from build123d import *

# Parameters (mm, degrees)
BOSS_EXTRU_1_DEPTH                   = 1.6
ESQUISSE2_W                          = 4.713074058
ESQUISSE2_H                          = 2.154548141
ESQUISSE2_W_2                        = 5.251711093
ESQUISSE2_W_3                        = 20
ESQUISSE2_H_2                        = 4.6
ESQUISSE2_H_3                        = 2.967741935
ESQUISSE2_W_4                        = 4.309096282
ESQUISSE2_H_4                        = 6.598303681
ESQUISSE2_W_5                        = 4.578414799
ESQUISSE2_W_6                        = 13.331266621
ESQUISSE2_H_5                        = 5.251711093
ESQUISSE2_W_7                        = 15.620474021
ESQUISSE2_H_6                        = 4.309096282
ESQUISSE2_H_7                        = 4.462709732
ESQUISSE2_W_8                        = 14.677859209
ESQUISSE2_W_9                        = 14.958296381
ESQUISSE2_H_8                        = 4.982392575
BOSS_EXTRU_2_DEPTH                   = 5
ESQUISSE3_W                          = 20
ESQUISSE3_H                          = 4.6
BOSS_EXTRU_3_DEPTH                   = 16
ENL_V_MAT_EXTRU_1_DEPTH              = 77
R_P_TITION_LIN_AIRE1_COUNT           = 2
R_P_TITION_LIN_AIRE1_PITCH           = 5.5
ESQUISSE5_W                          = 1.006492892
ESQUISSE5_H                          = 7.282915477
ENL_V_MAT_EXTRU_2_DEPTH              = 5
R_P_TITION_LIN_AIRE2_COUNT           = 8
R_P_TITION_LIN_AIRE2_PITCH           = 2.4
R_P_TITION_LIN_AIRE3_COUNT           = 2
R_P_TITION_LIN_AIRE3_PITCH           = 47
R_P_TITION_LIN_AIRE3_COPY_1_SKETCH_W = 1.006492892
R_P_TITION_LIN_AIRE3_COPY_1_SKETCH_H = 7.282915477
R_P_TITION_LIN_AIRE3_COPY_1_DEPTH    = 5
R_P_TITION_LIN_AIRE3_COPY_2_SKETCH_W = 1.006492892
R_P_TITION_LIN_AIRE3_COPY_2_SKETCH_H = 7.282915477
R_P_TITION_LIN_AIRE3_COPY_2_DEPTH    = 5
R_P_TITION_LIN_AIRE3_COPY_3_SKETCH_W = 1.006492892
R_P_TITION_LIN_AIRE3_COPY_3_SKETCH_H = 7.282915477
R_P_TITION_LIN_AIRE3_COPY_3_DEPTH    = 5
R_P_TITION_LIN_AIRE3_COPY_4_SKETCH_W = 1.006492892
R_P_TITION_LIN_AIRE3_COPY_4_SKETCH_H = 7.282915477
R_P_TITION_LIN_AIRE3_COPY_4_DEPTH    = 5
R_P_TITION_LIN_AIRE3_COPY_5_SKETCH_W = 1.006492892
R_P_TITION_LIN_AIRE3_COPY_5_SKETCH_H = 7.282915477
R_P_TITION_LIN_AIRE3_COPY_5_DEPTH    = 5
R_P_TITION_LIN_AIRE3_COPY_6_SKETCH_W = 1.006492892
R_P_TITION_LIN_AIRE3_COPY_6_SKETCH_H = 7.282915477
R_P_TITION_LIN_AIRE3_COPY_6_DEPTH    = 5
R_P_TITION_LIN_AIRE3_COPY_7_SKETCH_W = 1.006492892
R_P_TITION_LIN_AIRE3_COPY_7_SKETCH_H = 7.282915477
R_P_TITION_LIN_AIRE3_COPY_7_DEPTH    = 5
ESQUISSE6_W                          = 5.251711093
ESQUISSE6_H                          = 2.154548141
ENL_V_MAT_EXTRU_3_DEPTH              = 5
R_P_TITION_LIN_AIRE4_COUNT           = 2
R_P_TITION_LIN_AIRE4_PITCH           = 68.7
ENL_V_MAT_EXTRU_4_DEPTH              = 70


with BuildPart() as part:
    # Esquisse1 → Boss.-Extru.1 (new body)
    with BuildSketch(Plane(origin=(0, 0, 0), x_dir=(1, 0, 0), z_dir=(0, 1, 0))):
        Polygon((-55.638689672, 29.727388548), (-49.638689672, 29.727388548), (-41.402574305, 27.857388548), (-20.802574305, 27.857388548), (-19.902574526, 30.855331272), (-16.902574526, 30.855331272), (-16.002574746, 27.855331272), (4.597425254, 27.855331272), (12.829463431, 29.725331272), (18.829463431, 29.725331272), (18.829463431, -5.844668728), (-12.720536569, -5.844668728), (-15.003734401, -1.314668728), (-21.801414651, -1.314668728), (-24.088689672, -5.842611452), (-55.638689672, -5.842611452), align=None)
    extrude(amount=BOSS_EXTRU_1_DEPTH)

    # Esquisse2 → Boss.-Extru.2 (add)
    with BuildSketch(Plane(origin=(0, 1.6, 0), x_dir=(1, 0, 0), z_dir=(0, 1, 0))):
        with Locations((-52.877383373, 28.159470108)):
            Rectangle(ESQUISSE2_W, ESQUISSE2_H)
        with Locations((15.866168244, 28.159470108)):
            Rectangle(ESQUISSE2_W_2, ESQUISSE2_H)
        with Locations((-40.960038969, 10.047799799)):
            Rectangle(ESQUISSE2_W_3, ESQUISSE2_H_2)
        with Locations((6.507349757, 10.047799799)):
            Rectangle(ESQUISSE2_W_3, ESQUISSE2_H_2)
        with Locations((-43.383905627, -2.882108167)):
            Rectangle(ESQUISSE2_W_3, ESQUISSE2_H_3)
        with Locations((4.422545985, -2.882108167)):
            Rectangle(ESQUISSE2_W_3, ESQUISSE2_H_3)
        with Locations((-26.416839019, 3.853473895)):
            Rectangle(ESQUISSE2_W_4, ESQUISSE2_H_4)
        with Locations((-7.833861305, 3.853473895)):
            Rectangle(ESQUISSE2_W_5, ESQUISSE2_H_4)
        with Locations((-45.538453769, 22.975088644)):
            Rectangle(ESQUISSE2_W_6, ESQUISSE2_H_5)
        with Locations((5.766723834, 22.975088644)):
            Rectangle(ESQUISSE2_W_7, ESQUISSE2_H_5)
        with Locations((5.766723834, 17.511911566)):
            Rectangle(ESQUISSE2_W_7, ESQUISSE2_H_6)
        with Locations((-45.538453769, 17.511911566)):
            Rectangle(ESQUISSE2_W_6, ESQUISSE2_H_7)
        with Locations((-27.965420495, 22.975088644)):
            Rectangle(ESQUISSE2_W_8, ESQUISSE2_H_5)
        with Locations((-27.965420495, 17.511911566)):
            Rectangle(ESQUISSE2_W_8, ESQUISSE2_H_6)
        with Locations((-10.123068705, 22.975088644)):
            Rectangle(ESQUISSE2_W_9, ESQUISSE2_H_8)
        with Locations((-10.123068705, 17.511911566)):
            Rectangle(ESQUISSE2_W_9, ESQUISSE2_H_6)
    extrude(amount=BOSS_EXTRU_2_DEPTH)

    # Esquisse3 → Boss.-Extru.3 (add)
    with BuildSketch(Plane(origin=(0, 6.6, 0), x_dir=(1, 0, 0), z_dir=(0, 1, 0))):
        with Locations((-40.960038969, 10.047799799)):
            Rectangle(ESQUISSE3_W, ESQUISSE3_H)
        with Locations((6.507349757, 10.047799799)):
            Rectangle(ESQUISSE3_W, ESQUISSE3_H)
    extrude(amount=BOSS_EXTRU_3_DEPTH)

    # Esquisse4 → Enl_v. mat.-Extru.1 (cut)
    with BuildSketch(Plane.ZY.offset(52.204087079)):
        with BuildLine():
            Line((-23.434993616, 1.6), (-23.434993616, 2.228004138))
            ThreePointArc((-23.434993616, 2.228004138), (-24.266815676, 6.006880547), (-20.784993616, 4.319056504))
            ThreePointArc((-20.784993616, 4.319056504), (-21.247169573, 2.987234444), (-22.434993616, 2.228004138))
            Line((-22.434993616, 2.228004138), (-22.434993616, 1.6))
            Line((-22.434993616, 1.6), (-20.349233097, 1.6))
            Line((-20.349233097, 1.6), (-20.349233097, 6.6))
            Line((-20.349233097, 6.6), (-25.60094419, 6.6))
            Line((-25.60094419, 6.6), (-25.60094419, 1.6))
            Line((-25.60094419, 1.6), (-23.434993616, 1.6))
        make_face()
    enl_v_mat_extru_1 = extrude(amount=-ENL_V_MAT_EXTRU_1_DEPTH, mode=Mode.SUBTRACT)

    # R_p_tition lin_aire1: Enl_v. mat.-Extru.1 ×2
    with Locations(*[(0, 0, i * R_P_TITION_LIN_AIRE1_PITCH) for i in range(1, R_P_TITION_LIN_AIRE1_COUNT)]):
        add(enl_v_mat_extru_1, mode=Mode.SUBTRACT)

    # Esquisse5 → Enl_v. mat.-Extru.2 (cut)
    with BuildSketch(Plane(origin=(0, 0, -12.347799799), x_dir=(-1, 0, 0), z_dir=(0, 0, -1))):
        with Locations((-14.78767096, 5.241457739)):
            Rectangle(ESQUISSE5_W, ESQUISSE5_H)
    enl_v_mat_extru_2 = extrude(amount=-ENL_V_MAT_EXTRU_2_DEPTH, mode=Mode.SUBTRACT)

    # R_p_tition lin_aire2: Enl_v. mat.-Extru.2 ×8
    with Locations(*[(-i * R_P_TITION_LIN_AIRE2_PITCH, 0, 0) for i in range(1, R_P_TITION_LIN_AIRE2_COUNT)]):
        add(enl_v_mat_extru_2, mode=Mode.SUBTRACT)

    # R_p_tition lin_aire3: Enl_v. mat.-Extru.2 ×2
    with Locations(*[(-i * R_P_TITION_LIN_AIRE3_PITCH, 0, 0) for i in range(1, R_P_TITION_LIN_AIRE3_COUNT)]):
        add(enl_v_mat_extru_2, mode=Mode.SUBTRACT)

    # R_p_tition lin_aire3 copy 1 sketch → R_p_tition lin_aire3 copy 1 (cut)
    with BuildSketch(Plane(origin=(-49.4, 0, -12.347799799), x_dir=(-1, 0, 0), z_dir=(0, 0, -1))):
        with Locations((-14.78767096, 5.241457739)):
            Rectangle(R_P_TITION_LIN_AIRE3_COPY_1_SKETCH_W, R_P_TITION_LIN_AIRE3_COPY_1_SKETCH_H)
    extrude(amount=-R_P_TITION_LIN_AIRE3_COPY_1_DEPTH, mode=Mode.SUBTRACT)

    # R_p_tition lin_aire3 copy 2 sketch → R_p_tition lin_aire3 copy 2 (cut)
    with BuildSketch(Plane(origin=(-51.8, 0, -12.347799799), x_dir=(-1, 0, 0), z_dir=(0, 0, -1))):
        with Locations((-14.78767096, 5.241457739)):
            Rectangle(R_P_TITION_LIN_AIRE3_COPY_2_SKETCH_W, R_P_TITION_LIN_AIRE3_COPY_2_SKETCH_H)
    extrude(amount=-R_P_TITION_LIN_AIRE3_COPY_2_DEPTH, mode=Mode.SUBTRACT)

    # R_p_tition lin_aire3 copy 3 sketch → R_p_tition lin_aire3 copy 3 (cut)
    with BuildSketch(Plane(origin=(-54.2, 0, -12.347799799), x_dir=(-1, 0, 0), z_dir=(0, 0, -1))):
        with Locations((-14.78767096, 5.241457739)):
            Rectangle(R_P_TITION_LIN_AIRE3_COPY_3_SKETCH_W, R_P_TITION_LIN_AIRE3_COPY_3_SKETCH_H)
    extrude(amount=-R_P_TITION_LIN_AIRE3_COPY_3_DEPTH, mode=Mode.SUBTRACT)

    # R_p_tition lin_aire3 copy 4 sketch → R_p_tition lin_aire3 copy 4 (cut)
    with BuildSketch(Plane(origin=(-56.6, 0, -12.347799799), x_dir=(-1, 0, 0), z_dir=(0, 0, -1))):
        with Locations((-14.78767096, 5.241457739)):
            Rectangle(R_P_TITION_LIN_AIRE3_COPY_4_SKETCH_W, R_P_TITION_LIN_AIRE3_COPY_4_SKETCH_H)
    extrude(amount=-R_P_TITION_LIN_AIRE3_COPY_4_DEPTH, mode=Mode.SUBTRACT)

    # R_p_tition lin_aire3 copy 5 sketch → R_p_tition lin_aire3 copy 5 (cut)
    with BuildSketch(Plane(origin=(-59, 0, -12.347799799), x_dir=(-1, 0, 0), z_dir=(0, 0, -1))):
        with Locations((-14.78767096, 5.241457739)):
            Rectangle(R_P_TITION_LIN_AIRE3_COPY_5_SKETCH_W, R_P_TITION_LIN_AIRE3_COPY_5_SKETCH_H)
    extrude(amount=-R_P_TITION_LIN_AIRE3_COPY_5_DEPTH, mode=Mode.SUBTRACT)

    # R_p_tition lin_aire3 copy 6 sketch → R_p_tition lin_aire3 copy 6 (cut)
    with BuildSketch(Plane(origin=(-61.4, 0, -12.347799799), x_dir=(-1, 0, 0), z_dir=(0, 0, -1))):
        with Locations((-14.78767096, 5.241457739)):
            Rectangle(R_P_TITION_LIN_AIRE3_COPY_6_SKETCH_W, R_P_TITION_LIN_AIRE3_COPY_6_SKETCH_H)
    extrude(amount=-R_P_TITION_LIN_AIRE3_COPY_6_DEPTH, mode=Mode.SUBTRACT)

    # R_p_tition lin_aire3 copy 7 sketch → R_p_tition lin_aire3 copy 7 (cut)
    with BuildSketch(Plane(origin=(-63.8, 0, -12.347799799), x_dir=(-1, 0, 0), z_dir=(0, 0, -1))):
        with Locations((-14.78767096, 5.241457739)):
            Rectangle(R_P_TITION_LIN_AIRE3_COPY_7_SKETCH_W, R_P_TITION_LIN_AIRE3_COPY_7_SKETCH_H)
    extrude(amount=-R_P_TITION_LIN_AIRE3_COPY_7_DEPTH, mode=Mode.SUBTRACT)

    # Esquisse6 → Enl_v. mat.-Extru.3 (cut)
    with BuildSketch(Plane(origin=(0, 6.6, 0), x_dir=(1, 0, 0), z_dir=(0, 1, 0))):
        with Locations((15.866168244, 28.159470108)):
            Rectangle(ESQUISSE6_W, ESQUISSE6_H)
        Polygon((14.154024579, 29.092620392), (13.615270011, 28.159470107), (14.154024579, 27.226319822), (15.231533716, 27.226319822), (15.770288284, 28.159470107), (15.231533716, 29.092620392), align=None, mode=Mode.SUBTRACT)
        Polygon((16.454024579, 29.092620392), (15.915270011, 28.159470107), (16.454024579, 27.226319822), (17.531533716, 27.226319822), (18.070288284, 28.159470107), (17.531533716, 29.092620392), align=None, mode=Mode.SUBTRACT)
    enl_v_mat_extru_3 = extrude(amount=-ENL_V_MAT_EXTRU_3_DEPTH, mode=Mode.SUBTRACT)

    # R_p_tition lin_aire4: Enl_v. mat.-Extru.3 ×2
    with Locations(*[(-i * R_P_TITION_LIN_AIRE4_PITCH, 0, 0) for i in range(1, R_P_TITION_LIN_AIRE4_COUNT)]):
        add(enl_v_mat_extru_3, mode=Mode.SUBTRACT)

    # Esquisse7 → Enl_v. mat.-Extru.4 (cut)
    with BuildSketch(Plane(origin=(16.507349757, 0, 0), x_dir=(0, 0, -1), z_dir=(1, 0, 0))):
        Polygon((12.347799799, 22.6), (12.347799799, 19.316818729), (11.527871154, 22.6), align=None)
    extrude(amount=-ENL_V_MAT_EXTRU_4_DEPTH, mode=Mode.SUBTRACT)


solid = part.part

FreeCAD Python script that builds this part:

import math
import FreeCAD as App
import Part
import Sketcher
Q = App.Units.Quantity

doc = App.newDocument("Part")
body = doc.addObject("PartDesign::Body", "Body")

# Sketch on XZ plane
sketch1 = doc.addObject("Sketcher::SketchObject", "Sketch")
body.addObject(sketch1)
sketch1.AttachmentSupport = (doc.XZ_Plane, [""])
sketch1.MapMode = "FlatFace"
sketch1.addGeometry([
    Part.LineSegment(App.Vector(-49.6, -29.7, 0), App.Vector(-55.6, -29.7, 0)),  # 0
    Part.LineSegment(App.Vector(-55.6, -29.7, 0), App.Vector(-55.6, 5.8, 0)),  # 1
    Part.LineSegment(App.Vector(-55.6, 5.8, 0), App.Vector(-24.1, 5.8, 0)),  # 2
    Part.LineSegment(App.Vector(-24.1, 5.8, 0), App.Vector(-21.8, 1.3, 0)),  # 3
    Part.LineSegment(App.Vector(-21.8, 1.3, 0), App.Vector(-15, 1.3, 0)),  # 4
    Part.LineSegment(App.Vector(-15, 1.3, 0), App.Vector(-12.7, 5.8, 0)),  # 5
    Part.LineSegment(App.Vector(-12.7, 5.8, 0), App.Vector(18.8, 5.8, 0)),  # 6
    Part.LineSegment(App.Vector(18.8, 5.8, 0), App.Vector(18.8, -29.7, 0)),  # 7
    Part.LineSegment(App.Vector(18.8, -29.7, 0), App.Vector(12.8, -29.7, 0)),  # 8
    Part.LineSegment(App.Vector(12.8, -29.7, 0), App.Vector(4.6, -27.9, 0)),  # 9
    Part.LineSegment(App.Vector(4.6, -27.9, 0), App.Vector(-16, -27.9, 0)),  # 10
    Part.LineSegment(App.Vector(-16, -27.9, 0), App.Vector(-16.9, -30.9, 0)),  # 11
    Part.LineSegment(App.Vector(-16.9, -30.9, 0), App.Vector(-19.9, -30.9, 0)),  # 12
    Part.LineSegment(App.Vector(-19.9, -30.9, 0), App.Vector(-20.8, -27.9, 0)),  # 13
    Part.LineSegment(App.Vector(-20.8, -27.9, 0), App.Vector(-41.4, -27.9, 0)),  # 14
    Part.LineSegment(App.Vector(-41.4, -27.9, 0), App.Vector(-49.6, -29.7, 0)),  # 15
], False)
sketch1.addConstraint([
    Sketcher.Constraint("Coincident", 0, 2, 1, 1),
    Sketcher.Constraint("Coincident", 1, 2, 2, 1),
    Sketcher.Constraint("Coincident", 2, 2, 3, 1),
    Sketcher.Constraint("Coincident", 3, 2, 4, 1),
    Sketcher.Constraint("Coincident", 4, 2, 5, 1),
    Sketcher.Constraint("Coincident", 5, 2, 6, 1),
    Sketcher.Constraint("Coincident", 6, 2, 7, 1),
    Sketcher.Constraint("Coincident", 7, 2, 8, 1),
    Sketcher.Constraint("Coincident", 8, 2, 9, 1),
    Sketcher.Constraint("Coincident", 9, 2, 10, 1),
    Sketcher.Constraint("Coincident", 10, 2, 11, 1),
    Sketcher.Constraint("Coincident", 11, 2, 12, 1),
    Sketcher.Constraint("Coincident", 12, 2, 13, 1),
    Sketcher.Constraint("Coincident", 13, 2, 14, 1),
    Sketcher.Constraint("Coincident", 14, 2, 15, 1),
    Sketcher.Constraint("Coincident", 15, 2, 0, 1),
    Sketcher.Constraint("Horizontal", 0),
    Sketcher.Constraint("Vertical", 1),
    Sketcher.Constraint("Horizontal", 2),
    Sketcher.Constraint("Horizontal", 4),
    Sketcher.Constraint("Horizontal", 6),
    Sketcher.Constraint("Vertical", 7),
    Sketcher.Constraint("Horizontal", 8),
    Sketcher.Constraint("Horizontal", 10),
    Sketcher.Constraint("Horizontal", 12),
    Sketcher.Constraint("Horizontal", 14),
    Sketcher.Constraint("Equal", 2, 6),
    Sketcher.Constraint("Equal", 0, 8),
    Sketcher.Constraint("Equal", 10, 14),
    Sketcher.Constraint("Equal", 1, 7),
    Sketcher.Constraint("Equal", 3, 5),
    Sketcher.Constraint("DistanceX", 0, 2, 0, 1, 6.0),
    Sketcher.Constraint("DistanceX", 12, 2, 12, 1, 3.0),
    Sketcher.Constraint("DistanceX", 10, 2, 10, 1, 20.6),
    Sketcher.Constraint("DistanceY", 11, 2, 10, 2, 3.0),
    Sketcher.Constraint("DistanceX", 2, 1, 2, 2, 31.55),
    Sketcher.Constraint("DistanceY", 1, 1, 1, 2, 35.57),
    Sketcher.Constraint("DistanceY", 9, 2, 6, 2, 33.7),
    Sketcher.Constraint("DistanceX", 11, 2, 10, 2, 0.9),
    Sketcher.Constraint("DistanceX", 13, 2, 12, 2, 0.9),
    Sketcher.Constraint("DistanceY", 4, 2, 5, 2, 4.53),
    Sketcher.Constraint("DistanceY", 0, 2, 14, 2, 1.87),
    Sketcher.Constraint("DistanceX", 4, 1, 4, 2, 6.79768),
    Sketcher.Constraint("Distance", 3, 5.072858),
    Sketcher.Constraint("Distance", 13, 3.130121),
    Sketcher.Constraint("Distance", 15, 8.445738),
    Sketcher.Constraint("DistanceX", 0, 2, -1, 1, 55.63869),
    Sketcher.Constraint("DistanceY", 0, 2, -1, 1, 29.727389),
])
pad1 = doc.addObject("PartDesign::Pad", "Pad")
body.addObject(pad1)
pad1.Profile = sketch1
pad1.Length = 1.6
pad1.Reversed = True

# Sketch on XZ plane
sketch2 = doc.addObject("Sketcher::SketchObject", "Sketch001")
body.addObject(sketch2)
sketch2.AttachmentSupport = (doc.XZ_Plane, [""])
sketch2.MapMode = "FlatFace"
sketch2.AttachmentOffset = App.Placement(App.Vector(0, 0, -1.6), App.Rotation())
sketch2.addGeometry([
    Part.LineSegment(App.Vector(-55.2, -29.2, 0), App.Vector(-55.2, -27.1, 0)),  # 0
    Part.LineSegment(App.Vector(-55.2, -27.1, 0), App.Vector(-50.5, -27.1, 0)),  # 1
    Part.LineSegment(App.Vector(-50.5, -27.1, 0), App.Vector(-50.5, -29.2, 0)),  # 2
    Part.LineSegment(App.Vector(-50.5, -29.2, 0), App.Vector(-55.2, -29.2, 0)),  # 3
    Part.LineSegment(App.Vector(13.2, -29.2, 0), App.Vector(13.2, -27.1, 0)),  # 4
    Part.LineSegment(App.Vector(13.2, -27.1, 0), App.Vector(18.5, -27.1, 0)),  # 5
    Part.LineSegment(App.Vector(18.5, -27.1, 0), App.Vector(18.5, -29.2, 0)),  # 6
    Part.LineSegment(App.Vector(18.5, -29.2, 0), App.Vector(13.2, -29.2, 0)),  # 7
    Part.LineSegment(App.Vector(-51, -12.3, 0), App.Vector(-51, -7.7, 0)),  # 8
    Part.LineSegment(App.Vector(-51, -7.7, 0), App.Vector(-31, -7.7, 0)),  # 9
    Part.LineSegment(App.Vector(-31, -7.7, 0), App.Vector(-31, -12.3, 0)),  # 10
    Part.LineSegment(App.Vector(-31, -12.3, 0), App.Vector(-51, -12.3, 0)),  # 11
    Part.LineSegment(App.Vector(-3.5, -12.3, 0), App.Vector(-3.5, -7.7, 0)),  # 12
    Part.LineSegment(App.Vector(-3.5, -7.7, 0), App.Vector(16.5, -7.7, 0)),  # 13
    Part.LineSegment(App.Vector(16.5, -7.7, 0), App.Vector(16.5, -12.3, 0)),  # 14
    Part.LineSegment(App.Vector(16.5, -12.3, 0), App.Vector(-3.5, -12.3, 0)),  # 15
    Part.LineSegment(App.Vector(-53.4, 1.4, 0), App.Vector(-53.4, 4.4, 0)),  # 16
    Part.LineSegment(App.Vector(-53.4, 4.4, 0), App.Vector(-33.4, 4.4, 0)),  # 17
    Part.LineSegment(App.Vector(-33.4, 4.4, 0), App.Vector(-33.4, 1.4, 0)),  # 18
    Part.LineSegment(App.Vector(-33.4, 1.4, 0), App.Vector(-53.4, 1.4, 0)),  # 19
    Part.LineSegment(App.Vector(-5.6, 1.4, 0), App.Vector(-5.6, 4.4, 0)),  # 20
    Part.LineSegment(App.Vector(-5.6, 4.4, 0), App.Vector(14.4, 4.4, 0)),  # 21
    Part.LineSegment(App.Vector(14.4, 4.4, 0), App.Vector(14.4, 1.4, 0)),  # 22
    Part.LineSegment(App.Vector(14.4, 1.4, 0), App.Vector(-5.6, 1.4, 0)),  # 23
    Part.LineSegment(App.Vector(-28.6, -7.2, 0), App.Vector(-28.6, -0.6, 0)),  # 24
    Part.LineSegment(App.Vector(-28.6, -0.6, 0), App.Vector(-24.3, -0.6, 0)),  # 25
    Part.LineSegment(App.Vector(-24.3, -0.6, 0), App.Vector(-24.3, -7.2, 0)),  # 26
    Part.LineSegment(App.Vector(-24.3, -7.2, 0), App.Vector(-28.6, -7.2, 0)),  # 27
    Part.LineSegment(App.Vector(-10.1, -7.2, 0), App.Vector(-10.1, -0.6, 0)),  # 28
    Part.LineSegment(App.Vector(-10.1, -0.6, 0), App.Vector(-5.5, -0.6, 0)),  # 29
    Part.LineSegment(App.Vector(-5.5, -0.6, 0), App.Vector(-5.5, -7.2, 0)),  # 30
    Part.LineSegment(App.Vector(-5.5, -7.2, 0), App.Vector(-10.1, -7.2, 0)),  # 31
    Part.LineSegment(App.Vector(-52.2, -25.6, 0), App.Vector(-52.2, -20.3, 0)),  # 32
    Part.LineSegment(App.Vector(-52.2, -20.3, 0), App.Vector(-38.9, -20.3, 0)),  # 33
    Part.LineSegment(App.Vector(-38.9, -20.3, 0), App.Vector(-38.9, -25.6, 0)),  # 34
    Part.LineSegment(App.Vector(-38.9, -25.6, 0), App.Vector(-52.2, -25.6, 0)),  # 35
    Part.LineSegment(App.Vector(-2, -25.6, 0), App.Vector(-2, -20.3, 0)),  # 36
    Part.LineSegment(App.Vector(-2, -20.3, 0), App.Vector(13.6, -20.3, 0)),  # 37
    Part.LineSegment(App.Vector(13.6, -20.3, 0), App.Vector(13.6, -25.6, 0)),  # 38
    Part.LineSegment(App.Vector(13.6, -25.6, 0), App.Vector(-2, -25.6, 0)),  # 39
    Part.LineSegment(App.Vector(-2, -19.7, 0), App.Vector(-2, -15.4, 0)),  # 40
    Part.LineSegment(App.Vector(-2, -15.4, 0), App.Vector(13.6, -15.4, 0)),  # 41
    Part.LineSegment(App.Vector(13.6, -15.4, 0), App.Vector(13.6, -19.7, 0)),  # 42
    Part.LineSegment(App.Vector(13.6, -19.7, 0), App.Vector(-2, -19.7, 0)),  # 43
    Part.LineSegment(App.Vector(-52.2, -19.7, 0), App.Vector(-52.2, -15.3, 0)),  # 44
    Part.LineSegment(App.Vector(-52.2, -15.3, 0), App.Vector(-38.9, -15.3, 0)),  # 45
    Part.LineSegment(App.Vector(-38.9, -15.3, 0), App.Vector(-38.9, -19.7, 0)),  # 46
    Part.LineSegment(App.Vector(-38.9, -19.7, 0), App.Vector(-52.2, -19.7, 0)),  # 47
    Part.LineSegment(App.Vector(-35.3, -25.6, 0), App.Vector(-35.3, -20.3, 0)),  # 48
    Part.LineSegment(App.Vector(-35.3, -20.3, 0), App.Vector(-20.6, -20.3, 0)),  # 49
    Part.LineSegment(App.Vector(-20.6, -20.3, 0), App.Vector(-20.6, -25.6, 0)),  # 50
    Part.LineSegment(App.Vector(-20.6, -25.6, 0), App.Vector(-35.3, -25.6, 0)),  # 51
    Part.LineSegment(App.Vector(-35.3, -19.7, 0), App.Vector(-35.3, -15.4, 0)),  # 52
    Part.LineSegment(App.Vector(-35.3, -15.4, 0), App.Vector(-20.6, -15.4, 0)),  # 53
    Part.LineSegment(App.Vector(-20.6, -15.4, 0), App.Vector(-20.6, -19.7, 0)),  # 54
    Part.LineSegment(App.Vector(-20.6, -19.7, 0), App.Vector(-35.3, -19.7, 0)),  # 55
    Part.LineSegment(App.Vector(-17.6, -25.5, 0), App.Vector(-17.6, -20.5, 0)),  # 56
    Part.LineSegment(App.Vector(-17.6, -20.5, 0), App.Vector(-2.6, -20.5, 0)),  # 57
    Part.LineSegment(App.Vector(-2.6, -20.5, 0), App.Vector(-2.6, -25.5, 0)),  # 58
    Part.LineSegment(App.Vector(-2.6, -25.5, 0), App.Vector(-17.6, -25.5, 0)),  # 59
    Part.LineSegment(App.Vector(-17.6, -19.7, 0), App.Vector(-17.6, -15.4, 0)),  # 60
    Part.LineSegment(App.Vector(-17.6, -15.4, 0), App.Vector(-2.6, -15.4, 0)),  # 61
    Part.LineSegment(App.Vector(-2.6, -15.4, 0), App.Vector(-2.6, -19.7, 0)),  # 62
    Part.LineSegment(App.Vector(-2.6, -19.7, 0), App.Vector(-17.6, -19.7, 0)),  # 63
], False)
sketch2.addConstraint([
    Sketcher.Constraint("Coincident", 0, 2, 1, 1),
    Sketcher.Constraint("Coincident", 1, 2, 2, 1),
    Sketcher.Constraint("Coincident", 2, 2, 3, 1),
    Sketcher.Constraint("Coincident", 3, 2, 0, 1),
    Sketcher.Constraint("Coincident", 4, 2, 5, 1),
    Sketcher.Constraint("Coincident", 5, 2, 6, 1),
    Sketcher.Constraint("Coincident", 6, 2, 7, 1),
    Sketcher.Constraint("Coincident", 7, 2, 4, 1),
    Sketcher.Constraint("Coincident", 8, 2, 9, 1),
    Sketcher.Constraint("Coincident", 9, 2, 10, 1),
    Sketcher.Constraint("Coincident", 10, 2, 11, 1),
    Sketcher.Constraint("Coincident", 11, 2, 8, 1),
    Sketcher.Constraint("Coincident", 12, 2, 13, 1),
    Sketcher.Constraint("Coincident", 13, 2, 14, 1),
    Sketcher.Constraint("Coincident", 14, 2, 15, 1),
    Sketcher.Constraint("Coincident", 15, 2, 12, 1),
    Sketcher.Constraint("Coincident", 16, 2, 17, 1),
    Sketcher.Constraint("Coincident", 17, 2, 18, 1),
    Sketcher.Constraint("Coincident", 18, 2, 19, 1),
    Sketcher.Constraint("Coincident", 19, 2, 16, 1),
    Sketcher.Constraint("Coincident", 20, 2, 21, 1),
    Sketcher.Constraint("Coincident", 21, 2, 22, 1),
    Sketcher.Constraint("Coincident", 22, 2, 23, 1),
    Sketcher.Constraint("Coincident", 23, 2, 20, 1),
    Sketcher.Constraint("Coincident", 24, 2, 25, 1),
    Sketcher.Constraint("Coincident", 25, 2, 26, 1),
    Sketcher.Constraint("Coincident", 26, 2, 27, 1),
    Sketcher.Constraint("Coincident", 27, 2, 24, 1),
    Sketcher.Constraint("Coincident", 28, 2, 29, 1),
    Sketcher.Constraint("Coincident", 29, 2, 30, 1),
    Sketcher.Constraint("Coincident", 30, 2, 31, 1),
    Sketcher.Constraint("Coincident", 31, 2, 28, 1),
    Sketcher.Constraint("Coincident", 32, 2, 33, 1),
    Sketcher.Constraint("Coincident", 33, 2, 34, 1),
    Sketcher.Constraint("Coincident", 34, 2, 35, 1),
    Sketcher.Constraint("Coincident", 35, 2, 32, 1),
    Sketcher.Constraint("Coincident", 36, 2, 37, 1),
    Sketcher.Constraint("Coincident", 37, 2, 38, 1),
    Sketcher.Constraint("Coincident", 38, 2, 39, 1),
    Sketcher.Constraint("Coincident", 39, 2, 36, 1),
    Sketcher.Constraint("Coincident", 40, 2, 41, 1),
    Sketcher.Constraint("Coincident", 41, 2, 42, 1),
    Sketcher.Constraint("Coincident", 42, 2, 43, 1),
    Sketcher.Constraint("Coincident", 43, 2, 40, 1),
    Sketcher.Constraint("Coincident", 44, 2, 45, 1),
    Sketcher.Constraint("Coincident", 45, 2, 46, 1),
    Sketcher.Constraint("Coincident", 46, 2, 47, 1),
    Sketcher.Constraint("Coincident", 47, 2, 44, 1),
    Sketcher.Constraint("Coincident", 48, 2, 49, 1),
    Sketcher.Constraint("Coincident", 49, 2, 50, 1),
    Sketcher.Constraint("Coincident", 50, 2, 51, 1),
    Sketcher.Constraint("Coincident", 51, 2, 48, 1),
    Sketcher.Constraint("Coincident", 52, 2, 53, 1),
    Sketcher.Constraint("Coincident", 53, 2, 54, 1),
    Sketcher.Constraint("Coincident", 54, 2, 55, 1),
    Sketcher.Constraint("Coincident", 55, 2, 52, 1),
    Sketcher.Constraint("Coincident", 56, 2, 57, 1),
    Sketcher.Constraint("Coincident", 57, 2, 58, 1),
    Sketcher.Constraint("Coincident", 58, 2, 59, 1),
    Sketcher.Constraint("Coincident", 59, 2, 56, 1),
    Sketcher.Constraint("Coincident", 60, 2, 61, 1),
    Sketcher.Constraint("Coincident", 61, 2, 62, 1),
    Sketcher.Constraint("Coincident", 62, 2, 63, 1),
    Sketcher.Constraint("Coincident", 63, 2, 60, 1),
    Sketcher.Constraint("Vertical", 0),
    Sketcher.Constraint("Horizontal", 1),
    Sketcher.Constraint("Vertical", 2),
    Sketcher.Constraint("Horizontal", 3),
    Sketcher.Constraint("Vertical", 4),
    Sketcher.Constraint("Horizontal", 5),
    Sketcher.Constraint("Vertical", 6),
    Sketcher.Constraint("Horizontal", 7),
    Sketcher.Constraint("Vertical", 8),
    Sketcher.Constraint("Horizontal", 9),
    Sketcher.Constraint("Vertical", 10),
    Sketcher.Constraint("Horizontal", 11),
    Sketcher.Constraint("Vertical", 12),
    Sketcher.Constraint("Horizontal", 13),
    Sketcher.Constraint("Vertical", 14),
    Sketcher.Constraint("Horizontal", 15),
    Sketcher.Constraint("Vertical", 16),
    Sketcher.Constraint("Horizontal", 17),
    Sketcher.Constraint("Vertical", 18),
    Sketcher.Constraint("Horizontal", 19),
    Sketcher.Constraint("Vertical", 20),
    Sketcher.Constraint("Horizontal", 21),
    Sketcher.Constraint("Vertical", 22),
    Sketcher.Constraint("Horizontal", 23),
    Sketcher.Constraint("Vertical", 24),
    Sketcher.Constraint("Horizontal", 25),
    Sketcher.Constraint("Vertical", 26),
    Sketcher.Constraint("Horizontal", 27),
    Sketcher.Constraint("Vertical", 28),
    Sketcher.Constraint("Horizontal", 29),
    Sketcher.Constraint("Vertical", 30),
    Sketcher.Constraint("Horizontal", 31),
    Sketcher.Constraint("Vertical", 32),
    Sketcher.Constraint("Horizontal", 33),
    Sketcher.Constraint("Vertical", 34),
    Sketcher.Constraint("Horizontal", 35),
    Sketcher.Constraint("Vertical", 36),
    Sketcher.Constraint("Horizontal", 37),
    Sketcher.Constraint("Vertical", 38),
    Sketcher.Constraint("Horizontal", 39),
    Sketcher.Constraint("Vertical", 40),
    Sketcher.Constraint("Horizontal", 41),
    Sketcher.Constraint("Vertical", 42),
    Sketcher.Constraint("Horizontal", 43),
    Sketcher.Constraint("Vertical", 44),
    Sketcher.Constraint("Horizontal", 45),
    Sketcher.Constraint("Vertical", 46),
    Sketcher.Constraint("Horizontal", 47),
    Sketcher.Constraint("Vertical", 48),
    Sketcher.Constraint("Horizontal", 49),
    Sketcher.Constraint("Vertical", 50),
    Sketcher.Constraint("Horizontal", 51),
    Sketcher.Constraint("Vertical", 52),
    Sketcher.Constraint("Horizontal", 53),
    Sketcher.Constraint("Vertical", 54),
    Sketcher.Constraint("Horizontal", 55),
    Sketcher.Constraint("Vertical", 56),
    Sketcher.Constraint("Horizontal", 57),
    Sketcher.Constraint("Vertical", 58),
    Sketcher.Constraint("Horizontal", 59),
    Sketcher.Constraint("Vertical", 60),
    Sketcher.Constraint("Horizontal", 61),
    Sketcher.Constraint("Vertical", 62),
    Sketcher.Constraint("Horizontal", 63),
    Sketcher.Constraint("Horizontal", 1, 2, 4, 2),
    Sketcher.Constraint("Horizontal", 3, 2, 6, 2),
    Sketcher.Constraint("Horizontal", 9, 2, 12, 2),
    Sketcher.Constraint("Horizontal", 11, 2, 14, 2),
    Sketcher.Constraint("Horizontal", 17, 2, 20, 2),
    Sketcher.Constraint("Horizontal", 19, 2, 22, 2),
    Sketcher.Constraint("Horizontal", 25, 2, 28, 2),
    Sketcher.Constraint("Horizontal", 27, 2, 30, 2),
    Sketcher.Constraint("Horizontal", 33, 2, 36, 2),
    Sketcher.Constraint("Horizontal", 35, 2, 38, 2),
    Sketcher.Constraint("Horizontal", 37, 2, 48, 2),
    Sketcher.Constraint("Horizontal", 39, 2, 50, 2),
    Sketcher.Constraint("Horizontal", 41, 2, 52, 2),
    Sketcher.Constraint("Horizontal", 43, 2, 54, 2),
    Sketcher.Constraint("Horizontal", 53, 2, 60, 2),
    Sketcher.Constraint("Horizontal", 55, 2, 62, 2),
    Sketcher.Constraint("Vertical", 39, 2, 40, 2),
    Sketcher.Constraint("Vertical", 38, 2, 41, 2),
    Sketcher.Constraint("Vertical", 35, 2, 44, 2),
    Sketcher.Constraint("Vertical", 34, 2, 45, 2),
    Sketcher.Constraint("Vertical", 51, 2, 52, 2),
    Sketcher.Constraint("Vertical", 50, 2, 53, 2),
    Sketcher.Constraint("Vertical", 59, 2, 60, 2),
    Sketcher.Constraint("Vertical", 58, 2, 61, 2),
    Sketcher.Constraint("Equal", 11, 13),
    Sketcher.Constraint("Equal", 15, 17),
    Sketcher.Constraint("Equal", 19, 21),
    Sketcher.Constraint("Equal", 7, 32),
    Sketcher.Constraint("Equal", 27, 40),
    Sketcher.Constraint("DistanceX", 9, 1, 9, 2, 20.0),
    Sketcher.Constraint("DistanceY", 8, 1, 8, 2, 4.6),
    Sketcher.Constraint("DistanceX", 5, 1, 5, 2, 5.251711),
    Sketcher.Constraint("DistanceX", 49, 1, 49, 2, 14.677859),
    Sketcher.Constraint("DistanceY", 0, 1, 0, 2, 2.154548),
    Sketcher.Constraint("DistanceY", 16, 1, 16, 2, 2.967742),
    Sketcher.Constraint("DistanceY", 44, 1, 44, 2, 4.46271),
    Sketcher.Constraint("DistanceY", 8, 2, -1, 1, 7.7478),
    Sketcher.Constraint("DistanceX", 1, 1, 1, 2, 4.713074),
    Sketcher.Constraint("DistanceX", 25, 1, 25, 2, 4.309096),
    Sketcher.Constraint("DistanceX", 29, 1, 29, 2, 4.578415),
    Sketcher.Constraint("DistanceX", 33, 1, 33, 2, 13.331267),
    Sketcher.Constraint("DistanceX", 37, 1, 37, 2, 15.620474),
    Sketcher.Constraint("DistanceX", 57, 1, 57, 2, 14.958296),
    Sketcher.Constraint("DistanceY", 24, 1, 24, 2, 6.598304),
    Sketcher.Constraint("DistanceY", 56, 1, 56, 2, 4.982393),
    Sketcher.Constraint("DistanceX", 0, 2, -1, 1, 55.23392),
    Sketcher.Constraint("DistanceX", 8, 2, -1, 1, 50.960039),
    Sketcher.Constraint("DistanceX", 12, 2, -1, 1, 3.49265),
    Sketcher.Constraint("DistanceY", -1, 1, 16, 2, 4.365979),
    Sketcher.Constraint("DistanceX", 25, 2, -1, 1, 24.262291),
    Sketcher.Constraint("DistanceX", 28, 2, -1, 1, 10.123069),
    Sketcher.Constraint("DistanceX", 33, 2, -1, 1, 38.87282),
    Sketcher.Constraint("DistanceX", -1, 1, 37, 2, 13.576961),
    Sketcher.Constraint("DistanceY", 42, 2, -1, 1, 19.66646),
    Sketcher.Constraint("DistanceX", 48, 2, -1, 1, 35.30435),
    Sketcher.Constraint("DistanceX", 57, 2, -1, 1, 2.643921),
    Sketcher.Constraint("DistanceY", 0, 2, -1, 1, 27.082196),
    Sketcher.Constraint("DistanceX", -1, 1, 4, 2, 13.240313),
    Sketcher.Constraint("DistanceX", 16, 2, -1, 1, 53.383906),
    Sketcher.Constraint("DistanceX", 20, 2, -1, 1, 5.577454),
    Sketcher.Constraint("DistanceY", 24, 2, -1, 1, 0.554322),
    Sketcher.Constraint("DistanceY", 32, 2, -1, 1, 20.349233),
    Sketcher.Constraint("DistanceY", 44, 2, -1, 1, 15.280557),
    Sketcher.Constraint("DistanceY", 56, 2, -1, 1, 20.483892),
])
pad2 = doc.addObject("PartDesign::Pad", "Pad001")
body.addObject(pad2)
pad2.Profile = sketch2
pad2.Length = 5
pad2.Reversed = True

# Sketch on XZ plane
sketch3 = doc.addObject("Sketcher::SketchObject", "Sketch002")
body.addObject(sketch3)
sketch3.AttachmentSupport = (doc.XZ_Plane, [""])
sketch3.MapMode = "FlatFace"
sketch3.AttachmentOffset = App.Placement(App.Vector(0, 0, -6.6), App.Rotation())
sketch3.addGeometry([
    Part.LineSegment(App.Vector(-51, -12.3, 0), App.Vector(-51, -7.7, 0)),  # 0
    Part.LineSegment(App.Vector(-51, -7.7, 0), App.Vector(-31, -7.7, 0)),  # 1
    Part.LineSegment(App.Vector(-31, -7.7, 0), App.Vector(-31, -12.3, 0)),  # 2
    Part.LineSegment(App.Vector(-31, -12.3, 0), App.Vector(-51, -12.3, 0)),  # 3
    Part.LineSegment(App.Vector(-3.5, -12.3, 0), App.Vector(-3.5, -7.7, 0)),  # 4
    Part.LineSegment(App.Vector(-3.5, -7.7, 0), App.Vector(16.5, -7.7, 0)),  # 5
    Part.LineSegment(App.Vector(16.5, -7.7, 0), App.Vector(16.5, -12.3, 0)),  # 6
    Part.LineSegment(App.Vector(16.5, -12.3, 0), App.Vector(-3.5, -12.3, 0)),  # 7
], False)
sketch3.addConstraint([
    Sketcher.Constraint("Coincident", 0, 2, 1, 1),
    Sketcher.Constraint("Coincident", 1, 2, 2, 1),
    Sketcher.Constraint("Coincident", 2, 2, 3, 1),
    Sketcher.Constraint("Coincident", 3, 2, 0, 1),
    Sketcher.Constraint("Coincident", 4, 2, 5, 1),
    Sketcher.Constraint("Coincident", 5, 2, 6, 1),
    Sketcher.Constraint("Coincident", 6, 2, 7, 1),
    Sketcher.Constraint("Coincident", 7, 2, 4, 1),
    Sketcher.Constraint("Vertical", 0),
    Sketcher.Constraint("Horizontal", 1),
    Sketcher.Constraint("Vertical", 2),
    Sketcher.Constraint("Horizontal", 3),
    Sketcher.Constraint("Vertical", 4),
    Sketcher.Constraint("Horizontal", 5),
    Sketcher.Constraint("Vertical", 6),
    Sketcher.Constraint("Horizontal", 7),
    Sketcher.Constraint("Horizontal", 1, 2, 4, 2),
    Sketcher.Constraint("Horizontal", 3, 2, 6, 2),
    Sketcher.Constraint("Equal", 3, 5),
    Sketcher.Constraint("DistanceX", 1, 1, 1, 2, 20.0),
    Sketcher.Constraint("DistanceY", 0, 1, 0, 2, 4.6),
    Sketcher.Constraint("DistanceY", 0, 2, -1, 1, 7.7478),
    Sketcher.Constraint("DistanceX", 0, 2, -1, 1, 50.960039),
    Sketcher.Constraint("DistanceX", 4, 2, -1, 1, 3.49265),
])
pad3 = doc.addObject("PartDesign::Pad", "Pad002")
body.addObject(pad3)
pad3.Profile = sketch3
pad3.Length = 16
pad3.Reversed = True

# Sketch on YZ plane
sketch4 = doc.addObject("Sketcher::SketchObject", "Sketch003")
body.addObject(sketch4)
sketch4.AttachmentSupport = (doc.YZ_Plane, [""])
sketch4.MapMode = "FlatFace"
sketch4.AttachmentOffset = App.Placement(App.Vector(0, 0, -52.204087), App.Rotation())
sketch4.addGeometry([
    Part.LineSegment(App.Vector(1.6, -23.4, 0), App.Vector(2.2, -23.4, 0)),  # 0
    Part.ArcOfCircle(Part.Circle(App.Vector(4.3, -22.9, 0), App.Vector(0, 0, 1), 2.1), math.radians(-167), math.radians(90)),  # 1
    Part.ArcOfCircle(Part.Circle(App.Vector(4.3, -22.9, 0), App.Vector(0, 0, 1), 2.1), math.radians(90), math.radians(167)),  # 2
    Part.LineSegment(App.Vector(2.2, -22.4, 0), App.Vector(1.6, -22.4, 0)),  # 3
    Part.LineSegment(App.Vector(1.6, -22.4, 0), App.Vector(1.6, -20.3, 0)),  # 4
    Part.LineSegment(App.Vector(1.6, -20.3, 0), App.Vector(6.6, -20.3, 0)),  # 5
    Part.LineSegment(App.Vector(6.6, -20.3, 0), App.Vector(6.6, -25.6, 0)),  # 6
    Part.LineSegment(App.Vector(6.6, -25.6, 0), App.Vector(1.6, -25.6, 0)),  # 7
    Part.LineSegment(App.Vector(1.6, -25.6, 0), App.Vector(1.6, -23.4, 0)),  # 8
], False)
sketch4.addConstraint([
    Sketcher.Constraint("Coincident", 0, 2, 1, 1),
    Sketcher.Constraint("Tangent", 1, 2, 2, 1),
    Sketcher.Constraint("Coincident", 2, 2, 3, 1),
    Sketcher.Constraint("Coincident", 3, 2, 4, 1),
    Sketcher.Constraint("Coincident", 4, 2, 5, 1),
    Sketcher.Constraint("Coincident", 5, 2, 6, 1),
    Sketcher.Constraint("Coincident", 6, 2, 7, 1),
    Sketcher.Constraint("Coincident", 7, 2, 8, 1),
    Sketcher.Constraint("Coincident", 8, 2, 0, 1),
    Sketcher.Constraint("Horizontal", 0),
    Sketcher.Constraint("Horizontal", 3),
    Sketcher.Constraint("Vertical", 4),
    Sketcher.Constraint("Horizontal", 5),
    Sketcher.Constraint("Vertical", 6),
    Sketcher.Constraint("Horizontal", 7),
    Sketcher.Constraint("Vertical", 8),
    Sketcher.Constraint("Equal", 1, 2),
    Sketcher.Constraint("Vertical", 2, 3, 1, 2),
    Sketcher.Constraint("Vertical", 0, 2, 2, 2),
    Sketcher.Constraint("Vertical", 4, 2, 7, 2),
    Sketcher.Constraint("DistanceX", 5, 1, 5, 2, 5.0),
    Sketcher.Constraint("Radius", 1, 2.15),
    Sketcher.Constraint("DistanceY", 0, 2, 2, 2, 1.0),
    Sketcher.Constraint("DistanceX", -1, 1, 3, 2, 1.6),
    Sketcher.Constraint("DistanceY", 4, 1, 4, 2, 2.085761),
    Sketcher.Constraint("DistanceY", 6, 2, 6, 1, 5.251711),
    Sketcher.Constraint("DistanceX", 0, 1, 0, 2, 0.628004),
    Sketcher.Constraint("DistanceY", 1, 3, -1, 1, 22.934994),
])
pocket1 = doc.addObject("PartDesign::Pocket", "Pocket")
body.addObject(pocket1)
pocket1.Profile = sketch4
pocket1.Length = 77
pocket1.Reversed = True
doc.recompute()

linearpattern = doc.addObject("PartDesign::LinearPattern", "LinearPattern")
body.addObject(linearpattern)
linearpattern.Originals = [pocket1]
linearpattern.Direction = (doc.Z_Axis, [""])
linearpattern.Mode = "offset"
linearpattern.Offset = 5.5
linearpattern.Occurrences = 2
body.Tip = linearpattern

# Sketch on XY plane
sketch5 = doc.addObject("Sketcher::SketchObject", "Sketch004")
body.addObject(sketch5)
sketch5.AttachmentSupport = (doc.XY_Plane, [""])
sketch5.MapMode = "FlatFace"
sketch5.AttachmentOffset = App.Placement(App.Vector(0, 0, -12.3478), App.Rotation())
sketch5.addGeometry([
    Part.LineSegment(App.Vector(15.3, 8.9, 0), App.Vector(15.3, 1.6, 0)),
    Part.LineSegment(App.Vector(15.3, 1.6, 0), App.Vector(14.3, 1.6, 0)),
    Part.LineSegment(App.Vector(14.3, 1.6, 0), App.Vector(14.3, 8.9, 0)),
    Part.LineSegment(App.Vector(14.3, 8.9, 0), App.Vector(15.3, 8.9, 0)),
], False)
sketch5.addConstraint([
    Sketcher.Constraint("Coincident", 0, 2, 1, 1),
    Sketcher.Constraint("Coincident", 1, 2, 2, 1),
    Sketcher.Constraint("Coincident", 2, 2, 3, 1),
    Sketcher.Constraint("Coincident", 3, 2, 0, 1),
    Sketcher.Constraint("Vertical", 0),
    Sketcher.Constraint("Horizontal", 1),
    Sketcher.Constraint("Vertical", 2),
    Sketcher.Constraint("Horizontal", 3),
    Sketcher.Constraint("DistanceY", -1, 1, 0, 2, 1.6),
    Sketcher.Constraint("DistanceX", 1, 2, 1, 1, 1.006493),
    Sketcher.Constraint("DistanceY", 0, 2, 0, 1, 7.282915),
    Sketcher.Constraint("DistanceX", -1, 1, 0, 2, 15.290917),
])
pocket2 = doc.addObject("PartDesign::Pocket", "Pocket001")
body.addObject(pocket2)
pocket2.Profile = sketch5
pocket2.Length = 5
pocket2.Reversed = True
doc.recompute()

linearpattern2 = doc.addObject("PartDesign::LinearPattern", "LinearPattern001")
body.addObject(linearpattern2)
linearpattern2.Originals = [pocket2]
linearpattern2.Direction = (doc.X_Axis, [""])
linearpattern2.Mode = "offset"
linearpattern2.Offset = 2.4
linearpattern2.Occurrences = 8
linearpattern2.Reversed = True
body.Tip = linearpattern2
doc.recompute()

linearpattern3 = doc.addObject("PartDesign::LinearPattern", "LinearPattern002")
body.addObject(linearpattern3)
linearpattern3.Originals = [pocket2]
linearpattern3.Direction = (doc.X_Axis, [""])
linearpattern3.Mode = "offset"
linearpattern3.Offset = 47
linearpattern3.Occurrences = 2
linearpattern3.Reversed = True
body.Tip = linearpattern3

# Sketch on XY plane
sketch6 = doc.addObject("Sketcher::SketchObject", "Sketch005")
body.addObject(sketch6)
sketch6.AttachmentSupport = (doc.XY_Plane, [""])
sketch6.MapMode = "FlatFace"
sketch6.AttachmentOffset = App.Placement(App.Vector(0, 0, -12.3478), App.Rotation())
sketch6.addGeometry([
    Part.LineSegment(App.Vector(-34.1, 8.9, 0), App.Vector(-34.1, 1.6, 0)),
    Part.LineSegment(App.Vector(-34.1, 1.6, 0), App.Vector(-35.1, 1.6, 0)),
    Part.LineSegment(App.Vector(-35.1, 1.6, 0), App.Vector(-35.1, 8.9, 0)),
    Part.LineSegment(App.Vector(-35.1, 8.9, 0), App.Vector(-34.1, 8.9, 0)),
], False)
sketch6.addConstraint([
    Sketcher.Constraint("Coincident", 0, 2, 1, 1),
    Sketcher.Constraint("Coincident", 1, 2, 2, 1),
    Sketcher.Constraint("Coincident", 2, 2, 3, 1),
    Sketcher.Constraint("Coincident", 3, 2, 0, 1),
    Sketcher.Constraint("Vertical", 0),
    Sketcher.Constraint("Horizontal", 1),
    Sketcher.Constraint("Vertical", 2),
    Sketcher.Constraint("Horizontal", 3),
    Sketcher.Constraint("DistanceY", -1, 1, 0, 2, 1.6),
    Sketcher.Constraint("DistanceX", 1, 2, 1, 1, 1.006493),
    Sketcher.Constraint("DistanceY", 0, 2, 0, 1, 7.282915),
    Sketcher.Constraint("DistanceX", 0, 2, -1, 1, 34.109083),
])
pocket3 = doc.addObject("PartDesign::Pocket", "Pocket002")
body.addObject(pocket3)
pocket3.Profile = sketch6
pocket3.Length = 5
pocket3.Reversed = True

# Sketch on XY plane
sketch7 = doc.addObject("Sketcher::SketchObject", "Sketch006")
body.addObject(sketch7)
sketch7.AttachmentSupport = (doc.XY_Plane, [""])
sketch7.MapMode = "FlatFace"
sketch7.AttachmentOffset = App.Placement(App.Vector(0, 0, -12.3478), App.Rotation())
sketch7.addGeometry([
    Part.LineSegment(App.Vector(-36.5, 8.9, 0), App.Vector(-36.5, 1.6, 0)),
    Part.LineSegment(App.Vector(-36.5, 1.6, 0), App.Vector(-37.5, 1.6, 0)),
    Part.LineSegment(App.Vector(-37.5, 1.6, 0), App.Vector(-37.5, 8.9, 0)),
    Part.LineSegment(App.Vector(-37.5, 8.9, 0), App.Vector(-36.5, 8.9, 0)),
], False)
sketch7.addConstraint([
    Sketcher.Constraint("Coincident", 0, 2, 1, 1),
    Sketcher.Constraint("Coincident", 1, 2, 2, 1),
    Sketcher.Constraint("Coincident", 2, 2, 3, 1),
    Sketcher.Constraint("Coincident", 3, 2, 0, 1),
    Sketcher.Constraint("Vertical", 0),
    Sketcher.Constraint("Horizontal", 1),
    Sketcher.Constraint("Vertical", 2),
    Sketcher.Constraint("Horizontal", 3),
    Sketcher.Constraint("DistanceY", -1, 1, 0, 2, 1.6),
    Sketcher.Constraint("DistanceX", 1, 2, 1, 1, 1.006493),
    Sketcher.Constraint("DistanceY", 0, 2, 0, 1, 7.282915),
    Sketcher.Constraint("DistanceX", 0, 2, -1, 1, 36.509083),
])
pocket4 = doc.addObject("PartDesign::Pocket", "Pocket003")
body.addObject(pocket4)
pocket4.Profile = sketch7
pocket4.Length = 5
pocket4.Reversed = True

# Sketch on XY plane
sketch8 = doc.addObject("Sketcher::SketchObject", "Sketch007")
body.addObject(sketch8)
sketch8.AttachmentSupport = (doc.XY_Plane, [""])
sketch8.MapMode = "FlatFace"
sketch8.AttachmentOffset = App.Placement(App.Vector(0, 0, -12.3478), App.Rotation())
sketch8.addGeometry([
    Part.LineSegment(App.Vector(-38.9, 8.9, 0), App.Vector(-38.9, 1.6, 0)),
    Part.LineSegment(App.Vector(-38.9, 1.6, 0), App.Vector(-39.9, 1.6, 0)),
    Part.LineSegment(App.Vector(-39.9, 1.6, 0), App.Vector(-39.9, 8.9, 0)),
    Part.LineSegment(App.Vector(-39.9, 8.9, 0), App.Vector(-38.9, 8.9, 0)),
], False)
sketch8.addConstraint([
    Sketcher.Constraint("Coincident", 0, 2, 1, 1),
    Sketcher.Constraint("Coincident", 1, 2, 2, 1),
    Sketcher.Constraint("Coincident", 2, 2, 3, 1),
    Sketcher.Constraint("Coincident", 3, 2, 0, 1),
    Sketcher.Constraint("Vertical", 0),
    Sketcher.Constraint("Horizontal", 1),
    Sketcher.Constraint("Vertical", 2),
    Sketcher.Constraint("Horizontal", 3),
    Sketcher.Constraint("DistanceY", -1, 1, 0, 2, 1.6),
    Sketcher.Constraint("DistanceX", 1, 2, 1, 1, 1.006493),
    Sketcher.Constraint("DistanceY", 0, 2, 0, 1, 7.282915),
    Sketcher.Constraint("DistanceX", 0, 2, -1, 1, 38.909083),
])
pocket5 = doc.addObject("PartDesign::Pocket", "Pocket004")
body.addObject(pocket5)
pocket5.Profile = sketch8
pocket5.Length = 5
pocket5.Reversed = True

# Sketch on XY plane
sketch9 = doc.addObject("Sketcher::SketchObject", "Sketch008")
body.addObject(sketch9)
sketch9.AttachmentSupport = (doc.XY_Plane, [""])
sketch9.MapMode = "FlatFace"
sketch9.AttachmentOffset = App.Placement(App.Vector(0, 0, -12.3478), App.Rotation())
sketch9.addGeometry([
    Part.LineSegment(App.Vector(-41.3, 8.9, 0), App.Vector(-41.3, 1.6, 0)),
    Part.LineSegment(App.Vector(-41.3, 1.6, 0), App.Vector(-42.3, 1.6, 0)),
    Part.LineSegment(App.Vector(-42.3, 1.6, 0), App.Vector(-42.3, 8.9, 0)),
    Part.LineSegment(App.Vector(-42.3, 8.9, 0), App.Vector(-41.3, 8.9, 0)),
], False)
sketch9.addConstraint([
    Sketcher.Constraint("Coincident", 0, 2, 1, 1),
    Sketcher.Constraint("Coincident", 1, 2, 2, 1),
    Sketcher.Constraint("Coincident", 2, 2, 3, 1),
    Sketcher.Constraint("Coincident", 3, 2, 0, 1),
    Sketcher.Constraint("Vertical", 0),
    Sketcher.Constraint("Horizontal", 1),
    Sketcher.Constraint("Vertical", 2),
    Sketcher.Constraint("Horizontal", 3),
    Sketcher.Constraint("DistanceY", -1, 1, 0, 2, 1.6),
    Sketcher.Constraint("DistanceX", 1, 2, 1, 1, 1.006493),
    Sketcher.Constraint("DistanceY", 0, 2, 0, 1, 7.282915),
    Sketcher.Constraint("DistanceX", 0, 2, -1, 1, 41.309083),
])
pocket6 = doc.addObject("PartDesign::Pocket", "Pocket005")
body.addObject(pocket6)
pocket6.Profile = sketch9
pocket6.Length = 5
pocket6.Reversed = True

# Sketch on XY plane
sketch10 = doc.addObject("Sketcher::SketchObject", "Sketch009")
body.addObject(sketch10)
sketch10.AttachmentSupport = (doc.XY_Plane, [""])
sketch10.MapMode = "FlatFace"
sketch10.AttachmentOffset = App.Placement(App.Vector(0, 0, -12.3478), App.Rotation())
sketch10.addGeometry([
    Part.LineSegment(App.Vector(-43.7, 8.9, 0), App.Vector(-43.7, 1.6, 0)),
    Part.LineSegment(App.Vector(-43.7, 1.6, 0), App.Vector(-44.7, 1.6, 0)),
    Part.LineSegment(App.Vector(-44.7, 1.6, 0), App.Vector(-44.7, 8.9, 0)),
    Part.LineSegment(App.Vector(-44.7, 8.9, 0), App.Vector(-43.7, 8.9, 0)),
], False)
sketch10.addConstraint([
    Sketcher.Constraint("Coincident", 0, 2, 1, 1),
    Sketcher.Constraint("Coincident", 1, 2, 2, 1),
    Sketcher.Constraint("Coincident", 2, 2, 3, 1),
    Sketcher.Constraint("Coincident", 3, 2, 0, 1),
    Sketcher.Constraint("Vertical", 0),
    Sketcher.Constraint("Horizontal", 1),
    Sketcher.Constraint("Vertical", 2),
    Sketcher.Constraint("Horizontal", 3),
    Sketcher.Constraint("DistanceY", -1, 1, 0, 2, 1.6),
    Sketcher.Constraint("DistanceX", 1, 2, 1, 1, 1.006493),
    Sketcher.Constraint("DistanceY", 0, 2, 0, 1, 7.282915),
    Sketcher.Constraint("DistanceX", 0, 2, -1, 1, 43.709083),
])
pocket7 = doc.addObject("PartDesign::Pocket", "Pocket006")
body.addObject(pocket7)
pocket7.Profile = sketch10
pocket7.Length = 5
pocket7.Reversed = True

# Sketch on XY plane
sketch11 = doc.addObject("Sketcher::SketchObject", "Sketch010")
body.addObject(sketch11)
sketch11.AttachmentSupport = (doc.XY_Plane, [""])
sketch11.MapMode = "FlatFace"
sketch11.AttachmentOffset = App.Placement(App.Vector(0, 0, -12.3478), App.Rotation())
sketch11.addGeometry([
    Part.LineSegment(App.Vector(-46.1, 8.9, 0), App.Vector(-46.1, 1.6, 0)),
    Part.LineSegment(App.Vector(-46.1, 1.6, 0), App.Vector(-47.1, 1.6, 0)),
    Part.LineSegment(App.Vector(-47.1, 1.6, 0), App.Vector(-47.1, 8.9, 0)),
    Part.LineSegment(App.Vector(-47.1, 8.9, 0), App.Vector(-46.1, 8.9, 0)),
], False)
sketch11.addConstraint([
    Sketcher.Constraint("Coincident", 0, 2, 1, 1),
    Sketcher.Constraint("Coincident", 1, 2, 2, 1),
    Sketcher.Constraint("Coincident", 2, 2, 3, 1),
    Sketcher.Constraint("Coincident", 3, 2, 0, 1),
    Sketcher.Constraint("Vertical", 0),
    Sketcher.Constraint("Horizontal", 1),
    Sketcher.Constraint("Vertical", 2),
    Sketcher.Constraint("Horizontal", 3),
    Sketcher.Constraint("DistanceY", -1, 1, 0, 2, 1.6),
    Sketcher.Constraint("DistanceX", 1, 2, 1, 1, 1.006493),
    Sketcher.Constraint("DistanceY", 0, 2, 0, 1, 7.282915),
    Sketcher.Constraint("DistanceX", 0, 2, -1, 1, 46.109083),
])
pocket8 = doc.addObject("PartDesign::Pocket", "Pocket007")
body.addObject(pocket8)
pocket8.Profile = sketch11
pocket8.Length = 5
pocket8.Reversed = True

# Sketch on XY plane
sketch12 = doc.addObject("Sketcher::SketchObject", "Sketch011")
body.addObject(sketch12)
sketch12.AttachmentSupport = (doc.XY_Plane, [""])
sketch12.MapMode = "FlatFace"
sketch12.AttachmentOffset = App.Placement(App.Vector(0, 0, -12.3478), App.Rotation())
sketch12.addGeometry([
    Part.LineSegment(App.Vector(-48.5, 8.9, 0), App.Vector(-48.5, 1.6, 0)),
    Part.LineSegment(App.Vector(-48.5, 1.6, 0), App.Vector(-49.5, 1.6, 0)),
    Part.LineSegment(App.Vector(-49.5, 1.6, 0), App.Vector(-49.5, 8.9, 0)),
    Part.LineSegment(App.Vector(-49.5, 8.9, 0), App.Vector(-48.5, 8.9, 0)),
], False)
sketch12.addConstraint([
    Sketcher.Constraint("Coincident", 0, 2, 1, 1),
    Sketcher.Constraint("Coincident", 1, 2, 2, 1),
    Sketcher.Constraint("Coincident", 2, 2, 3, 1),
    Sketcher.Constraint("Coincident", 3, 2, 0, 1),
    Sketcher.Constraint("Vertical", 0),
    Sketcher.Constraint("Horizontal", 1),
    Sketcher.Constraint("Vertical", 2),
    Sketcher.Constraint("Horizontal", 3),
    Sketcher.Constraint("DistanceY", -1, 1, 0, 2, 1.6),
    Sketcher.Constraint("DistanceX", 1, 2, 1, 1, 1.006493),
    Sketcher.Constraint("DistanceY", 0, 2, 0, 1, 7.282915),
    Sketcher.Constraint("DistanceX", 0, 2, -1, 1, 48.509083),
])
pocket9 = doc.addObject("PartDesign::Pocket", "Pocket008")
body.addObject(pocket9)
pocket9.Profile = sketch12
pocket9.Length = 5
pocket9.Reversed = True

# Sketch on XZ plane
sketch13 = doc.addObject("Sketcher::SketchObject", "Sketch012")
body.addObject(sketch13)
sketch13.AttachmentSupport = (doc.XZ_Plane, [""])
sketch13.MapMode = "FlatFace"
sketch13.AttachmentOffset = App.Placement(App.Vector(0, 0, -6.6), App.Rotation())
sketch13.addGeometry([
    Part.LineSegment(App.Vector(13.2, -29.2, 0), App.Vector(13.2, -27.1, 0)),  # 0
    Part.LineSegment(App.Vector(13.2, -27.1, 0), App.Vector(18.5, -27.1, 0)),  # 1
    Part.LineSegment(App.Vector(18.5, -27.1, 0), App.Vector(18.5, -29.2, 0)),  # 2
    Part.LineSegment(App.Vector(18.5, -29.2, 0), App.Vector(13.2, -29.2, 0)),  # 3
    Part.LineSegment(App.Vector(13.6, -28.2, 0), App.Vector(14.2, -29.1, 0)),  # 4
    Part.LineSegment(App.Vector(14.2, -29.1, 0), App.Vector(15.2, -29.1, 0)),  # 5
    Part.LineSegment(App.Vector(15.2, -29.1, 0), App.Vector(15.8, -28.2, 0)),  # 6
    Part.LineSegment(App.Vector(15.8, -28.2, 0), App.Vector(15.2, -27.2, 0)),  # 7
    Part.LineSegment(App.Vector(15.2, -27.2, 0), App.Vector(14.2, -27.2, 0)),  # 8
    Part.LineSegment(App.Vector(14.2, -27.2, 0), App.Vector(13.6, -28.2, 0)),  # 9
    Part.LineSegment(App.Vector(15.9, -28.2, 0), App.Vector(16.5, -29.1, 0)),  # 10
    Part.LineSegment(App.Vector(16.5, -29.1, 0), App.Vector(17.5, -29.1, 0)),  # 11
    Part.LineSegment(App.Vector(17.5, -29.1, 0), App.Vector(18.1, -28.2, 0)),  # 12
    Part.LineSegment(App.Vector(18.1, -28.2, 0), App.Vector(17.5, -27.2, 0)),  # 13
    Part.LineSegment(App.Vector(17.5, -27.2, 0), App.Vector(16.5, -27.2, 0)),  # 14
    Part.LineSegment(App.Vector(16.5, -27.2, 0), App.Vector(15.9, -28.2, 0)),  # 15
], False)
sketch13.addConstraint([
    Sketcher.Constraint("Coincident", 0, 2, 1, 1),
    Sketcher.Constraint("Coincident", 1, 2, 2, 1),
    Sketcher.Constraint("Coincident", 2, 2, 3, 1),
    Sketcher.Constraint("Coincident", 3, 2, 0, 1),
    Sketcher.Constraint("Coincident", 4, 2, 5, 1),
    Sketcher.Constraint("Coincident", 5, 2, 6, 1),
    Sketcher.Constraint("Coincident", 6, 2, 7, 1),
    Sketcher.Constraint("Coincident", 7, 2, 8, 1),
    Sketcher.Constraint("Coincident", 8, 2, 9, 1),
    Sketcher.Constraint("Coincident", 9, 2, 4, 1),
    Sketcher.Constraint("Coincident", 10, 2, 11, 1),
    Sketcher.Constraint("Coincident", 11, 2, 12, 1),
    Sketcher.Constraint("Coincident", 12, 2, 13, 1),
    Sketcher.Constraint("Coincident", 13, 2, 14, 1),
    Sketcher.Constraint("Coincident", 14, 2, 15, 1),
    Sketcher.Constraint("Coincident", 15, 2, 10, 1),
    Sketcher.Constraint("Vertical", 0),
    Sketcher.Constraint("Horizontal", 1),
    Sketcher.Constraint("Vertical", 2),
    Sketcher.Constraint("Horizontal", 3),
    Sketcher.Constraint("Horizontal", 5),
    Sketcher.Constraint("Horizontal", 8),
    Sketcher.Constraint("Horizontal", 11),
    Sketcher.Constraint("Horizontal", 14),
    Sketcher.Constraint("Parallel", 4, 7),
    Sketcher.Constraint("Parallel", 6, 9),
    Sketcher.Constraint("Parallel", 7, 10),
    Sketcher.Constraint("Parallel", 9, 12),
    Sketcher.Constraint("Parallel", 10, 13),
    Sketcher.Constraint("Parallel", 12, 15),
    Sketcher.Constraint("Horizontal", 6, 2, 9, 2),
    Sketcher.Constraint("Horizontal", 5, 2, 10, 2),
    Sketcher.Constraint("Horizontal", 9, 2, 12, 2),
    Sketcher.Constraint("Horizontal", 8, 2, 13, 2),
    Sketcher.Constraint("Horizontal", 12, 2, 15, 2),
    Sketcher.Constraint("Vertical", 5, 2, 7, 2),
    Sketcher.Constraint("Vertical", 4, 2, 8, 2),
    Sketcher.Constraint("Equal", 8, 11),
    Sketcher.Constraint("Angle", 4, Q("-60 deg")),
    Sketcher.Constraint("DistanceX", 4, 2, 10, 2, 2.3),
    Sketcher.Constraint("DistanceX", 4, 2, 2, 2, 4.337999),
    Sketcher.Constraint("DistanceX", 1, 1, 1, 2, 5.251711),
    Sketcher.Constraint("DistanceX", 5, 1, 5, 2, 1.077509),
    Sketcher.Constraint("DistanceY", 0, 1, 0, 2, 2.154548),
    Sketcher.Constraint("DistanceY", 5, 2, 7, 2, 1.866301),
    Sketcher.Constraint("DistanceY", 4, 2, -1, 1, 29.09262),
    Sketcher.Constraint("DistanceX", -1, 1, 6, 2, 15.770288),
    Sketcher.Constraint("DistanceY", 0, 2, -1, 1, 27.082196),
])
pocket10 = doc.addObject("PartDesign::Pocket", "Pocket009")
body.addObject(pocket10)
pocket10.Profile = sketch13
pocket10.Length = 5
pocket10.Reversed = True
doc.recompute()

linearpattern4 = doc.addObject("PartDesign::LinearPattern", "LinearPattern003")
body.addObject(linearpattern4)
linearpattern4.Originals = [pocket10]
linearpattern4.Direction = (doc.X_Axis, [""])
linearpattern4.Mode = "offset"
linearpattern4.Offset = 68.7
linearpattern4.Occurrences = 2
linearpattern4.Reversed = True
body.Tip = linearpattern4

# Sketch on YZ plane
sketch14 = doc.addObject("Sketcher::SketchObject", "Sketch013")
body.addObject(sketch14)
sketch14.AttachmentSupport = (doc.YZ_Plane, [""])
sketch14.MapMode = "FlatFace"
sketch14.AttachmentOffset = App.Placement(App.Vector(0, 0, 16.50735), App.Rotation())
sketch14.addGeometry([
    Part.LineSegment(App.Vector(19.3, -12.3, 0), App.Vector(22.6, -12.3, 0)),
    Part.LineSegment(App.Vector(22.6, -12.3, 0), App.Vector(22.6, -11.5, 0)),
    Part.LineSegment(App.Vector(22.6, -11.5, 0), App.Vector(19.3, -12.3, 0)),
], False)
sketch14.addConstraint([
    Sketcher.Constraint("Coincident", 0, 2, 1, 1),
    Sketcher.Constraint("Coincident", 1, 2, 2, 1),
    Sketcher.Constraint("Coincident", 2, 2, 0, 1),
    Sketcher.Constraint("Horizontal", 0),
    Sketcher.Constraint("Vertical", 1),
    Sketcher.Constraint("DistanceX", -1, 1, 0, 2, 22.6),
    Sketcher.Constraint("DistanceX", 0, 1, 0, 2, 3.283181),
    Sketcher.Constraint("DistanceY", 1, 1, 1, 2, 0.819929),
    Sketcher.Constraint("DistanceY", 0, 2, -1, 1, 12.3478),
])
pocket11 = doc.addObject("PartDesign::Pocket", "Pocket010")
body.addObject(pocket11)
pocket11.Profile = sketch14
pocket11.Length = 70

doc.recompute()
